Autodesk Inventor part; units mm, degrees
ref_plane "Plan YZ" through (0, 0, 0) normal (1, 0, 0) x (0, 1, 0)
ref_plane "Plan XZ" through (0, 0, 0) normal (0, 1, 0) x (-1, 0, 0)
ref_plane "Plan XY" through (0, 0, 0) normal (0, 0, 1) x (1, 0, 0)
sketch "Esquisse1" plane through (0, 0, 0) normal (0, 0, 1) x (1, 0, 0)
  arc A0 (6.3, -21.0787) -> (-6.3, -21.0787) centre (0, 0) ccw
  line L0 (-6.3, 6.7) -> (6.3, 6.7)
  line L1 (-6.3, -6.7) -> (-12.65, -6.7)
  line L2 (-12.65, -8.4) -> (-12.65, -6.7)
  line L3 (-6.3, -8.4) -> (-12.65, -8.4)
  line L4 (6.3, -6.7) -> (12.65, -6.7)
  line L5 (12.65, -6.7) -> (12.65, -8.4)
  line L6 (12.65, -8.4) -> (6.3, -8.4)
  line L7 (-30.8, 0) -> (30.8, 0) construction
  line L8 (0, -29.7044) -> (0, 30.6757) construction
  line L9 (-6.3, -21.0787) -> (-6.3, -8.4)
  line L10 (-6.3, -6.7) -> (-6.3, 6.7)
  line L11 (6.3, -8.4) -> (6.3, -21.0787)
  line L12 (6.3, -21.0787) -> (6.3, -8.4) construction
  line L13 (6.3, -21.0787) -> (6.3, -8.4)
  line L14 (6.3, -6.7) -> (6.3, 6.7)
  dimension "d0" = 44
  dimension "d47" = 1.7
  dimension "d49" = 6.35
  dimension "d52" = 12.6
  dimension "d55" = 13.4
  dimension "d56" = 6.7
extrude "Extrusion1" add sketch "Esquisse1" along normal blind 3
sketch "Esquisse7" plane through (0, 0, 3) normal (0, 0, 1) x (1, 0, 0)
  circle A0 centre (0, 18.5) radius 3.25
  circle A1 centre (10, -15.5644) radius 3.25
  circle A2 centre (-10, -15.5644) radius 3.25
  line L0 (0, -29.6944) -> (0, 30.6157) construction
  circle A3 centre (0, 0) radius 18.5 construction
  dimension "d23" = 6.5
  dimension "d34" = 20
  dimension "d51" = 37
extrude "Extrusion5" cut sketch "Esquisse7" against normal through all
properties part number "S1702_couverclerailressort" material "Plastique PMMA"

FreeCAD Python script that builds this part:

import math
import FreeCAD as App
import Part
import Sketcher

V = App.Vector

doc = App.newDocument("Part")
params = doc.addObject("Spreadsheet::Sheet", "Params")
for row, (alias, value) in enumerate([
    ("sketch1_radius", "22 mm"),
    ("sketch1_width", "12.6 mm"),
    ("sketch1_height", "1.7 mm"),
    ("sketch1_height2", "13.4 mm"),
    ("sketch1_width2", "6.35 mm"),
    ("pad1_length", "3 mm"),
    ("sketch2_diameter", "6.5 mm"),
], start=1):
    params.set(f"A{row}", alias)
    params.set(f"B{row}", "=" + value)
    params.setAlias(f"B{row}", alias)

body = doc.addObject("PartDesign::Body", "Body")

sketch1 = body.newObject("Sketcher::SketchObject", "Sketch")
sketch1.AttachmentSupport = (doc.getObject("XY_Plane"), [""])
sketch1.MapMode = "FlatFace"
sketch1.addGeometry(Part.LineSegment(V(6.3, -8.4, 0), V(6.3, -21.1, 0)), False)
sketch1.addGeometry(Part.ArcOfCircle(Part.Circle(V(0, 0, 0), V(0, 0, 1), 22), math.radians(-73), math.radians(253)), False)
sketch1.addGeometry(Part.LineSegment(V(-6.3, -21.1, 0), V(-6.3, -8.4, 0)), False)
sketch1.addGeometry(Part.LineSegment(V(-6.3, -8.4, 0), V(-12.7, -8.4, 0)), False)
sketch1.addGeometry(Part.LineSegment(V(-12.7, -8.4, 0), V(-12.7, -6.7, 0)), False)
sketch1.addGeometry(Part.LineSegment(V(-12.7, -6.7, 0), V(-6.3, -6.7, 0)), False)
sketch1.addGeometry(Part.LineSegment(V(-6.3, -6.7, 0), V(-6.3, 6.7, 0)), False)
sketch1.addGeometry(Part.LineSegment(V(-6.3, 6.7, 0), V(6.3, 6.7, 0)), False)
sketch1.addGeometry(Part.LineSegment(V(6.3, 6.7, 0), V(6.3, -6.7, 0)), False)
sketch1.addGeometry(Part.LineSegment(V(6.3, -6.7, 0), V(12.7, -6.7, 0)), False)
sketch1.addGeometry(Part.LineSegment(V(12.7, -6.7, 0), V(12.7, -8.4, 0)), False)
sketch1.addGeometry(Part.LineSegment(V(12.7, -8.4, 0), V(6.3, -8.4, 0)), False)
sketch1.addConstraint(Sketcher.Constraint("Coincident", 0, 2, 1, 1))
sketch1.addConstraint(Sketcher.Constraint("Coincident", 1, 2, 2, 1))
sketch1.addConstraint(Sketcher.Constraint("Coincident", 2, 2, 3, 1))
sketch1.addConstraint(Sketcher.Constraint("Coincident", 3, 2, 4, 1))
sketch1.addConstraint(Sketcher.Constraint("Coincident", 4, 2, 5, 1))
sketch1.addConstraint(Sketcher.Constraint("Coincident", 5, 2, 6, 1))
sketch1.addConstraint(Sketcher.Constraint("Coincident", 6, 2, 7, 1))
sketch1.addConstraint(Sketcher.Constraint("Coincident", 7, 2, 8, 1))
sketch1.addConstraint(Sketcher.Constraint("Coincident", 8, 2, 9, 1))
sketch1.addConstraint(Sketcher.Constraint("Coincident", 9, 2, 10, 1))
sketch1.addConstraint(Sketcher.Constraint("Coincident", 10, 2, 11, 1))
sketch1.addConstraint(Sketcher.Constraint("Coincident", 11, 2, 0, 1))
sketch1.addConstraint(Sketcher.Constraint("Vertical", 0))
sketch1.addConstraint(Sketcher.Constraint("Vertical", 2))
sketch1.addConstraint(Sketcher.Constraint("Horizontal", 3))
sketch1.addConstraint(Sketcher.Constraint("Vertical", 4))
sketch1.addConstraint(Sketcher.Constraint("Horizontal", 5))
sketch1.addConstraint(Sketcher.Constraint("Vertical", 6))
sketch1.addConstraint(Sketcher.Constraint("Horizontal", 7))
sketch1.addConstraint(Sketcher.Constraint("Vertical", 8))
sketch1.addConstraint(Sketcher.Constraint("Horizontal", 9))
sketch1.addConstraint(Sketcher.Constraint("Vertical", 10))
sketch1.addConstraint(Sketcher.Constraint("Horizontal", 11))
sketch1.addConstraint(Sketcher.Constraint("Coincident", 1, 3, -1, 1))
sketch1.addConstraint(Sketcher.Constraint("Symmetric", 5, 2, 7, 2, -1, 1))
sketch1.addConstraint(Sketcher.Constraint("Symmetric", 4, 2, 9, 2, -2))
sketch1.addConstraint(Sketcher.Constraint("Symmetric", 2, 2, 11, 2, -2))
sketch1.addConstraint(Sketcher.Constraint("Vertical", 2, 2, 5, 2))
sketch1.addConstraint(Sketcher.Constraint("Radius", 1, 22.0))
sketch1.addConstraint(Sketcher.Constraint("DistanceX", 7, 1, 7, 2, 12.6))
sketch1.addConstraint(Sketcher.Constraint("DistanceY", 4, 1, 4, 2, 1.7))
sketch1.addConstraint(Sketcher.Constraint("DistanceY", 6, 1, 6, 2, 13.4))
sketch1.addConstraint(Sketcher.Constraint("DistanceX", 3, 2, 3, 1, 6.35))
sketch1.setExpression("Constraints[28]", "Params.sketch1_radius")
sketch1.setExpression("Constraints[29]", "Params.sketch1_width")
sketch1.setExpression("Constraints[30]", "Params.sketch1_height")
sketch1.setExpression("Constraints[31]", "Params.sketch1_height2")
sketch1.setExpression("Constraints[32]", "Params.sketch1_width2")
pad1 = body.newObject("PartDesign::Pad", "Pad")
pad1.Profile = sketch1
pad1.setExpression("Length", "Params.pad1_length")

sketch2 = body.newObject("Sketcher::SketchObject", "Sketch001")
sketch2.AttachmentSupport = (doc.getObject("XY_Plane"), [""])
sketch2.MapMode = "FlatFace"
sketch2.AttachmentOffset = App.Placement(V(0, 0, 3), App.Rotation())
sketch2.addGeometry(Part.Circle(V(0, 18.5, 0), V(0, 0, 1), 3.2), False)
sketch2.addGeometry(Part.Circle(V(10, -15.6, 0), V(0, 0, 1), 3.2), False)
sketch2.addGeometry(Part.Circle(V(-10, -15.6, 0), V(0, 0, 1), 3.2), False)
sketch2.addConstraint(Sketcher.Constraint("Equal", 0, 1))
sketch2.addConstraint(Sketcher.Constraint("Equal", 1, 2))
sketch2.addConstraint(Sketcher.Constraint("Symmetric", 1, 3, 2, 3, -2))
sketch2.addConstraint(Sketcher.Constraint("PointOnObject", 0, 3, -2))
sketch2.addConstraint(Sketcher.Constraint("Diameter", 0, 6.5))
sketch2.addConstraint(Sketcher.Constraint("DistanceX", 2, 3, 1, 3, 20.0))
sketch2.addConstraint(Sketcher.Constraint("DistanceY", -1, 1, 0, 3, 18.5))
sketch2.addConstraint(Sketcher.Constraint("DistanceY", 1, 3, -1, 1, 15.5644))
sketch2.setExpression("Constraints[4]", "Params.sketch2_diameter")
pocket1 = body.newObject("PartDesign::Pocket", "Pocket")
pocket1.Profile = sketch2
pocket1.Type = "ThroughAll"

doc.recompute()
